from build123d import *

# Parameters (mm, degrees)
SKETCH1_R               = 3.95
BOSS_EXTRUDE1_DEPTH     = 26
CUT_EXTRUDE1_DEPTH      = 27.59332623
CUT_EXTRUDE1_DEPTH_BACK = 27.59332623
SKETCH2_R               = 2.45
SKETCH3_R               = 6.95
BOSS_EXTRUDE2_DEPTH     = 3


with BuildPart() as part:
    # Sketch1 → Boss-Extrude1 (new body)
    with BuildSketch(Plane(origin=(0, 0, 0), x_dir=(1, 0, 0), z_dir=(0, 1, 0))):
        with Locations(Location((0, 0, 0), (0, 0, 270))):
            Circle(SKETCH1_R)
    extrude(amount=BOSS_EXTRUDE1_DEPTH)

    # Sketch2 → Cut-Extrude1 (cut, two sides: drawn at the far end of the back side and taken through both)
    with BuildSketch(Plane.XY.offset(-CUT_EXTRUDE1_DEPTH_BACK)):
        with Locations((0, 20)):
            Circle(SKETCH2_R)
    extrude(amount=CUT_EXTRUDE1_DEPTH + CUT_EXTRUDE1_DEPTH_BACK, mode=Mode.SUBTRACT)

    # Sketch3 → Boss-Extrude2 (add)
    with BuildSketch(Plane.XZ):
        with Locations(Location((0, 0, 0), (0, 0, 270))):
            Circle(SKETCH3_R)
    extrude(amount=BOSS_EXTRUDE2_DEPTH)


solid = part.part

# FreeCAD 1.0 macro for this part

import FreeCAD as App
import Part
import Sketcher

V = App.Vector

doc = App.newDocument("Part")
params = doc.addObject("Spreadsheet::Sheet", "Params")
for row, (alias, value) in enumerate([
    ("sketch1_diameter", "7.9 mm"),
    ("pad1_length", "26 mm"),
    ("sketch2_diameter", "4.9 mm"),
    ("sketch3_diameter", "13.9 mm"),
    ("pad2_length", "3 mm"),
], start=1):
    params.set(f"A{row}", alias)
    params.set(f"B{row}", "=" + value)
    params.setAlias(f"B{row}", alias)

body = doc.addObject("PartDesign::Body", "Body")

sketch1 = doc.addObject("Sketcher::SketchObject", "Sketch")
body.addObject(sketch1)
sketch1.AttachmentSupport = (doc.XZ_Plane, [""])
sketch1.MapMode = "FlatFace"
sketch1.addGeometry(Part.Circle(V(0, 0, 0), V(0, 0, 1), 3.95), False)
sketch1.addConstraint([
    Sketcher.Constraint("Coincident", 0, 3, -1, 1),
    Sketcher.Constraint("Diameter", 0, 7.9),
])
sketch1.setExpression("Constraints[1]", "Params.sketch1_diameter")
pad1 = doc.addObject("PartDesign::Pad", "Pad")
body.addObject(pad1)
pad1.Profile = sketch1
pad1.setExpression("Length", "Params.pad1_length")
pad1.Reversed = True

sketch2 = doc.addObject("Sketcher::SketchObject", "Sketch001")
body.addObject(sketch2)
sketch2.AttachmentSupport = (doc.XY_Plane, [""])
sketch2.MapMode = "FlatFace"
sketch2.addGeometry(Part.Circle(V(0, 20, 0), V(0, 0, 1), 2.45), False)
sketch2.addConstraint([
    Sketcher.Constraint("PointOnObject", 0, 3, -2),
    Sketcher.Constraint("Diameter", 0, 4.9),
    Sketcher.Constraint("DistanceY", -1, 1, 0, 3, 20.0),
])
sketch2.setExpression("Constraints[1]", "Params.sketch2_diameter")
pocket1 = doc.addObject("PartDesign::Pocket", "Pocket")
body.addObject(pocket1)
pocket1.Profile = sketch2
pocket1.Type = "ThroughAll"
pocket1.Midplane = True

sketch3 = doc.addObject("Sketcher::SketchObject", "Sketch002")
body.addObject(sketch3)
sketch3.AttachmentSupport = (doc.XZ_Plane, [""])
sketch3.MapMode = "FlatFace"
sketch3.addGeometry(Part.Circle(V(0, 0, 0), V(0, 0, 1), 6.95), False)
sketch3.addConstraint([
    Sketcher.Constraint("Coincident", 0, 3, -1, 1),
    Sketcher.Constraint("Diameter", 0, 13.9),
])
sketch3.setExpression("Constraints[1]", "Params.sketch3_diameter")
pad2 = doc.addObject("PartDesign::Pad", "Pad001")
body.addObject(pad2)
pad2.Profile = sketch3
pad2.setExpression("Length", "Params.pad2_length")

doc.recompute()
